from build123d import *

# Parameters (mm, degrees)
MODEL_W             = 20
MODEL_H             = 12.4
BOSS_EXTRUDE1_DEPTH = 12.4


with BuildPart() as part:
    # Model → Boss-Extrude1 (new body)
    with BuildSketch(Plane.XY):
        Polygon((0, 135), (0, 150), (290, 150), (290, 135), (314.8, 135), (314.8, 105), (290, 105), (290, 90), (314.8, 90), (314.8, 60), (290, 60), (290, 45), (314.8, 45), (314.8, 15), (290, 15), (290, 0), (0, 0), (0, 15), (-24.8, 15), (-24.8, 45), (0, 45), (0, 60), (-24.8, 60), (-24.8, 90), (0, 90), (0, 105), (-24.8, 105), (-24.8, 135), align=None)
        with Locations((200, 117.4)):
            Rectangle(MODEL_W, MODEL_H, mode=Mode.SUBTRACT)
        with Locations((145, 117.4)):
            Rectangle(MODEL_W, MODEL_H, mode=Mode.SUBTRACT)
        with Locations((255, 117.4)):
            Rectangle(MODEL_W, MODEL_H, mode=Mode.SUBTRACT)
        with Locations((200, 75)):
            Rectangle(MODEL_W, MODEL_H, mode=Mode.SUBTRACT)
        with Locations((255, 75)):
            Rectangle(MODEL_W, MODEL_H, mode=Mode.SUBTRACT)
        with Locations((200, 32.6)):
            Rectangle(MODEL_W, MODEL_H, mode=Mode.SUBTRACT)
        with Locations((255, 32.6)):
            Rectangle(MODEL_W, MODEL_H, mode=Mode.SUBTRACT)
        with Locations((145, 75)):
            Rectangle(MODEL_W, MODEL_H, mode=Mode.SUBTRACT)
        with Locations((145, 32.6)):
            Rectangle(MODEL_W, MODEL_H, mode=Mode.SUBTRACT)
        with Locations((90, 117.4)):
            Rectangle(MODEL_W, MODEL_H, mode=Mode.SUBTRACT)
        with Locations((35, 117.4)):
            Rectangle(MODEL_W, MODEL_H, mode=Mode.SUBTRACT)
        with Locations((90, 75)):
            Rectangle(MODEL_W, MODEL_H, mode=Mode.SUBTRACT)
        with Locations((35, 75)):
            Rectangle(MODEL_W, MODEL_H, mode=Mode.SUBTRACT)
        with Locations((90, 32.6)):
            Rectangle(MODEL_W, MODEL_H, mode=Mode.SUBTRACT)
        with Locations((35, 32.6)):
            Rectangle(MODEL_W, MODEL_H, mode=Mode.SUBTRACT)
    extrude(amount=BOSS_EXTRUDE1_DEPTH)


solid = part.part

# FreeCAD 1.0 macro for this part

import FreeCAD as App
import Part
import Sketcher
Q = App.Units.Quantity


def add_polygon(sketch, points):
    """Adds a closed chain of lines whose ends are joined by coincident constraints."""
    first, n = sketch.GeometryCount, len(points)
    for a, b in zip(points, points[1:] + points[:1]):
        sketch.addGeometry(Part.LineSegment(App.Vector(*a, 0), App.Vector(*b, 0)), False)
    for i in range(n):
        sketch.addConstraint(Sketcher.Constraint("Coincident", first + i, 2, first + (i + 1) % n, 1))

doc = App.newDocument("Part")
body = doc.addObject("PartDesign::Body", "Body")

sketch1 = body.newObject("Sketcher::SketchObject", "Sketch")
sketch1.AttachmentSupport = (doc.getObject("XY_Plane"), [""])
sketch1.MapMode = "FlatFace"
add_polygon(sketch1, [(0, 150), (0, 135), (-25, 135), (-25, 105), (0, 105), (0, 90), (-25, 90), (-25, 60), (0, 60), (0, 45), (-25, 45), (-25, 15), (0, 15), (0, 0), (290, 0), (290, 15), (315, 15), (315, 45), (290, 45), (290, 60), (315, 60), (315, 90), (290, 90), (290, 105), (315, 105), (315, 135), (290, 135), (290, 150)])
add_polygon(sketch1, [(245, 26), (245, 39), (265, 39), (265, 26)])
add_polygon(sketch1, [(190, 26), (190, 39), (210, 39), (210, 26)])
add_polygon(sketch1, [(245, 69), (245, 81), (265, 81), (265, 69)])
add_polygon(sketch1, [(190, 69), (190, 81), (210, 81), (210, 69)])
add_polygon(sketch1, [(135, 26), (135, 39), (155, 39), (155, 26)])
add_polygon(sketch1, [(80, 26), (80, 39), (100, 39), (100, 26)])
add_polygon(sketch1, [(25, 26), (25, 39), (45, 39), (45, 26)])
add_polygon(sketch1, [(135, 69), (135, 81), (155, 81), (155, 69)])
add_polygon(sketch1, [(80, 69), (80, 81), (100, 81), (100, 69)])
add_polygon(sketch1, [(25, 69), (25, 81), (45, 81), (45, 69)])
add_polygon(sketch1, [(245, 111), (245, 124), (265, 124), (265, 111)])
add_polygon(sketch1, [(190, 111), (190, 124), (210, 124), (210, 111)])
add_polygon(sketch1, [(135, 111), (135, 124), (155, 124), (155, 111)])
add_polygon(sketch1, [(80, 111), (80, 124), (100, 124), (100, 111)])
add_polygon(sketch1, [(25, 111), (25, 124), (45, 124), (45, 111)])
sketch1.addConstraint(Sketcher.Constraint("Vertical", 0))
sketch1.addConstraint(Sketcher.Constraint("Horizontal", 1))
sketch1.addConstraint(Sketcher.Constraint("Vertical", 2))
sketch1.addConstraint(Sketcher.Constraint("Horizontal", 3))
sketch1.addConstraint(Sketcher.Constraint("Vertical", 4))
sketch1.addConstraint(Sketcher.Constraint("Horizontal", 5))
sketch1.addConstraint(Sketcher.Constraint("Vertical", 6))
sketch1.addConstraint(Sketcher.Constraint("Horizontal", 7))
sketch1.addConstraint(Sketcher.Constraint("Vertical", 8))
sketch1.addConstraint(Sketcher.Constraint("Horizontal", 9))
sketch1.addConstraint(Sketcher.Constraint("Vertical", 10))
sketch1.addConstraint(Sketcher.Constraint("Horizontal", 11))
sketch1.addConstraint(Sketcher.Constraint("Vertical", 12))
sketch1.addConstraint(Sketcher.Constraint("Horizontal", 13))
sketch1.addConstraint(Sketcher.Constraint("Vertical", 14))
sketch1.addConstraint(Sketcher.Constraint("Horizontal", 15))
sketch1.addConstraint(Sketcher.Constraint("Vertical", 16))
sketch1.addConstraint(Sketcher.Constraint("Horizontal", 17))
sketch1.addConstraint(Sketcher.Constraint("Vertical", 18))
sketch1.addConstraint(Sketcher.Constraint("Horizontal", 19))
sketch1.addConstraint(Sketcher.Constraint("Vertical", 20))
sketch1.addConstraint(Sketcher.Constraint("Horizontal", 21))
sketch1.addConstraint(Sketcher.Constraint("Vertical", 22))
sketch1.addConstraint(Sketcher.Constraint("Horizontal", 23))
sketch1.addConstraint(Sketcher.Constraint("Vertical", 24))
sketch1.addConstraint(Sketcher.Constraint("Horizontal", 25))
sketch1.addConstraint(Sketcher.Constraint("Vertical", 26))
sketch1.addConstraint(Sketcher.Constraint("Horizontal", 27))
sketch1.addConstraint(Sketcher.Constraint("Vertical", 28))
sketch1.addConstraint(Sketcher.Constraint("Horizontal", 29))
sketch1.addConstraint(Sketcher.Constraint("Vertical", 30))
sketch1.addConstraint(Sketcher.Constraint("Horizontal", 31))
sketch1.addConstraint(Sketcher.Constraint("Vertical", 32))
sketch1.addConstraint(Sketcher.Constraint("Horizontal", 33))
sketch1.addConstraint(Sketcher.Constraint("Vertical", 34))
sketch1.addConstraint(Sketcher.Constraint("Horizontal", 35))
sketch1.addConstraint(Sketcher.Constraint("Vertical", 36))
sketch1.addConstraint(Sketcher.Constraint("Horizontal", 37))
sketch1.addConstraint(Sketcher.Constraint("Vertical", 38))
sketch1.addConstraint(Sketcher.Constraint("Horizontal", 39))
sketch1.addConstraint(Sketcher.Constraint("Vertical", 40))
sketch1.addConstraint(Sketcher.Constraint("Horizontal", 41))
sketch1.addConstraint(Sketcher.Constraint("Vertical", 42))
sketch1.addConstraint(Sketcher.Constraint("Horizontal", 43))
sketch1.addConstraint(Sketcher.Constraint("Vertical", 44))
sketch1.addConstraint(Sketcher.Constraint("Horizontal", 45))
sketch1.addConstraint(Sketcher.Constraint("Vertical", 46))
sketch1.addConstraint(Sketcher.Constraint("Horizontal", 47))
sketch1.addConstraint(Sketcher.Constraint("Vertical", 48))
sketch1.addConstraint(Sketcher.Constraint("Horizontal", 49))
sketch1.addConstraint(Sketcher.Constraint("Vertical", 50))
sketch1.addConstraint(Sketcher.Constraint("Horizontal", 51))
sketch1.addConstraint(Sketcher.Constraint("Vertical", 52))
sketch1.addConstraint(Sketcher.Constraint("Horizontal", 53))
sketch1.addConstraint(Sketcher.Constraint("Vertical", 54))
sketch1.addConstraint(Sketcher.Constraint("Horizontal", 55))
sketch1.addConstraint(Sketcher.Constraint("Vertical", 56))
sketch1.addConstraint(Sketcher.Constraint("Horizontal", 57))
sketch1.addConstraint(Sketcher.Constraint("Vertical", 58))
sketch1.addConstraint(Sketcher.Constraint("Horizontal", 59))
sketch1.addConstraint(Sketcher.Constraint("Vertical", 60))
sketch1.addConstraint(Sketcher.Constraint("Horizontal", 61))
sketch1.addConstraint(Sketcher.Constraint("Vertical", 62))
sketch1.addConstraint(Sketcher.Constraint("Horizontal", 63))
sketch1.addConstraint(Sketcher.Constraint("Vertical", 64))
sketch1.addConstraint(Sketcher.Constraint("Horizontal", 65))
sketch1.addConstraint(Sketcher.Constraint("Vertical", 66))
sketch1.addConstraint(Sketcher.Constraint("Horizontal", 67))
sketch1.addConstraint(Sketcher.Constraint("Vertical", 68))
sketch1.addConstraint(Sketcher.Constraint("Horizontal", 69))
sketch1.addConstraint(Sketcher.Constraint("Vertical", 70))
sketch1.addConstraint(Sketcher.Constraint("Horizontal", 71))
sketch1.addConstraint(Sketcher.Constraint("Vertical", 72))
sketch1.addConstraint(Sketcher.Constraint("Horizontal", 73))
sketch1.addConstraint(Sketcher.Constraint("Vertical", 74))
sketch1.addConstraint(Sketcher.Constraint("Horizontal", 75))
sketch1.addConstraint(Sketcher.Constraint("Vertical", 76))
sketch1.addConstraint(Sketcher.Constraint("Horizontal", 77))
sketch1.addConstraint(Sketcher.Constraint("Vertical", 78))
sketch1.addConstraint(Sketcher.Constraint("Horizontal", 79))
sketch1.addConstraint(Sketcher.Constraint("Vertical", 80))
sketch1.addConstraint(Sketcher.Constraint("Horizontal", 81))
sketch1.addConstraint(Sketcher.Constraint("Vertical", 82))
sketch1.addConstraint(Sketcher.Constraint("Horizontal", 83))
sketch1.addConstraint(Sketcher.Constraint("Vertical", 84))
sketch1.addConstraint(Sketcher.Constraint("Horizontal", 85))
sketch1.addConstraint(Sketcher.Constraint("Vertical", 86))
sketch1.addConstraint(Sketcher.Constraint("Horizontal", 87))
sketch1.addConstraint(Sketcher.Constraint("Coincident", 12, 2, -1, 1))
sketch1.addConstraint(Sketcher.Constraint("PointOnObject", 0, 2, -2))
sketch1.addConstraint(Sketcher.Constraint("PointOnObject", 3, 2, -2))
sketch1.addConstraint(Sketcher.Constraint("PointOnObject", 7, 2, -2))
sketch1.addConstraint(Sketcher.Constraint("Horizontal", 11, 2, 14, 2))
sketch1.addConstraint(Sketcher.Constraint("Horizontal", 9, 2, 16, 2))
sketch1.addConstraint(Sketcher.Constraint("Horizontal", 7, 2, 18, 2))
sketch1.addConstraint(Sketcher.Constraint("Horizontal", 5, 2, 20, 2))
sketch1.addConstraint(Sketcher.Constraint("Horizontal", 3, 2, 22, 2))
sketch1.addConstraint(Sketcher.Constraint("Horizontal", 1, 2, 24, 2))
sketch1.addConstraint(Sketcher.Constraint("Horizontal", 29, 2, 32, 2))
sketch1.addConstraint(Sketcher.Constraint("Horizontal", 31, 2, 34, 2))
sketch1.addConstraint(Sketcher.Constraint("Horizontal", 37, 2, 40, 2))
sketch1.addConstraint(Sketcher.Constraint("Horizontal", 39, 2, 42, 2))
sketch1.addConstraint(Sketcher.Constraint("Horizontal", 33, 2, 44, 2))
sketch1.addConstraint(Sketcher.Constraint("Horizontal", 35, 2, 46, 2))
sketch1.addConstraint(Sketcher.Constraint("Horizontal", 45, 2, 48, 2))
sketch1.addConstraint(Sketcher.Constraint("Horizontal", 47, 2, 50, 2))
sketch1.addConstraint(Sketcher.Constraint("Horizontal", 49, 2, 52, 2))
sketch1.addConstraint(Sketcher.Constraint("Horizontal", 51, 2, 54, 2))
sketch1.addConstraint(Sketcher.Constraint("Horizontal", 41, 2, 56, 2))
sketch1.addConstraint(Sketcher.Constraint("Horizontal", 43, 2, 58, 2))
sketch1.addConstraint(Sketcher.Constraint("Horizontal", 57, 2, 60, 2))
sketch1.addConstraint(Sketcher.Constraint("Horizontal", 59, 2, 62, 2))
sketch1.addConstraint(Sketcher.Constraint("Horizontal", 61, 2, 64, 2))
sketch1.addConstraint(Sketcher.Constraint("Horizontal", 63, 2, 66, 2))
sketch1.addConstraint(Sketcher.Constraint("Horizontal", 69, 2, 72, 2))
sketch1.addConstraint(Sketcher.Constraint("Horizontal", 71, 2, 74, 2))
sketch1.addConstraint(Sketcher.Constraint("Horizontal", 73, 2, 76, 2))
sketch1.addConstraint(Sketcher.Constraint("Horizontal", 75, 2, 78, 2))
sketch1.addConstraint(Sketcher.Constraint("Horizontal", 77, 2, 80, 2))
sketch1.addConstraint(Sketcher.Constraint("Horizontal", 79, 2, 82, 2))
sketch1.addConstraint(Sketcher.Constraint("Horizontal", 81, 2, 84, 2))
sketch1.addConstraint(Sketcher.Constraint("Horizontal", 83, 2, 86, 2))
sketch1.addConstraint(Sketcher.Constraint("Vertical", 2, 2, 5, 2))
sketch1.addConstraint(Sketcher.Constraint("Vertical", 6, 2, 9, 2))
sketch1.addConstraint(Sketcher.Constraint("Vertical", 14, 2, 17, 2))
sketch1.addConstraint(Sketcher.Constraint("Vertical", 16, 2, 19, 2))
sketch1.addConstraint(Sketcher.Constraint("Vertical", 18, 2, 21, 2))
sketch1.addConstraint(Sketcher.Constraint("Vertical", 20, 2, 23, 2))
sketch1.addConstraint(Sketcher.Constraint("Vertical", 22, 2, 25, 2))
sketch1.addConstraint(Sketcher.Constraint("Vertical", 31, 2, 36, 2))
sketch1.addConstraint(Sketcher.Constraint("Vertical", 30, 2, 37, 2))
sketch1.addConstraint(Sketcher.Constraint("Vertical", 35, 2, 40, 2))
sketch1.addConstraint(Sketcher.Constraint("Vertical", 34, 2, 41, 2))
sketch1.addConstraint(Sketcher.Constraint("Vertical", 47, 2, 56, 2))
sketch1.addConstraint(Sketcher.Constraint("Vertical", 46, 2, 57, 2))
sketch1.addConstraint(Sketcher.Constraint("Vertical", 51, 2, 60, 2))
sketch1.addConstraint(Sketcher.Constraint("Vertical", 50, 2, 61, 2))
sketch1.addConstraint(Sketcher.Constraint("Vertical", 55, 2, 64, 2))
sketch1.addConstraint(Sketcher.Constraint("Vertical", 54, 2, 65, 2))
sketch1.addConstraint(Sketcher.Constraint("Vertical", 39, 2, 68, 2))
sketch1.addConstraint(Sketcher.Constraint("Vertical", 38, 2, 69, 2))
sketch1.addConstraint(Sketcher.Constraint("Vertical", 43, 2, 72, 2))
sketch1.addConstraint(Sketcher.Constraint("Vertical", 42, 2, 73, 2))
sketch1.addConstraint(Sketcher.Constraint("Vertical", 59, 2, 76, 2))
sketch1.addConstraint(Sketcher.Constraint("Vertical", 58, 2, 77, 2))
sketch1.addConstraint(Sketcher.Constraint("Vertical", 63, 2, 80, 2))
sketch1.addConstraint(Sketcher.Constraint("Vertical", 62, 2, 81, 2))
sketch1.addConstraint(Sketcher.Constraint("Vertical", 67, 2, 84, 2))
sketch1.addConstraint(Sketcher.Constraint("Vertical", 66, 2, 85, 2))
sketch1.addConstraint(Sketcher.Constraint("Equal", 11, 15))
sketch1.addConstraint(Sketcher.Constraint("Equal", 31, 33))
sketch1.addConstraint(Sketcher.Constraint("Equal", 43, 45))
sketch1.addConstraint(Sketcher.Constraint("Equal", 47, 49))
sketch1.addConstraint(Sketcher.Constraint("Equal", 51, 53))
sketch1.addConstraint(Sketcher.Constraint("Equal", 0, 4))
sketch1.addConstraint(Sketcher.Constraint("Equal", 2, 6))
sketch1.addConstraint(Sketcher.Constraint("Equal", 4, 8))
sketch1.addConstraint(Sketcher.Constraint("Equal", 6, 10))
sketch1.addConstraint(Sketcher.Constraint("Equal", 8, 12))
sketch1.addConstraint(Sketcher.Constraint("Equal", 34, 36))
sketch1.addConstraint(Sketcher.Constraint("Equal", 66, 68))
sketch1.addConstraint(Sketcher.Constraint("DistanceX", 13, 1, 13, 2, Q("290 mm")))
sketch1.addConstraint(Sketcher.Constraint("DistanceX", 29, 1, 29, 2, Q("20 mm")))
sketch1.addConstraint(Sketcher.Constraint("DistanceY", 0, 2, 0, 1, Q("15 mm")))
sketch1.addConstraint(Sketcher.Constraint("DistanceY", 2, 2, 2, 1, Q("30 mm")))
sketch1.addConstraint(Sketcher.Constraint("DistanceX", 1, 2, 1, 1, Q("24.8 mm")))
sketch1.addConstraint(Sketcher.Constraint("DistanceY", 28, 1, 28, 2, Q("12.4 mm")))
sketch1.addConstraint(Sketcher.Constraint("DistanceX", -1, 1, 28, 2, Q("245 mm")))
sketch1.addConstraint(Sketcher.Constraint("DistanceX", -1, 1, 32, 2, Q("190 mm")))
sketch1.addConstraint(Sketcher.Constraint("DistanceX", -1, 1, 44, 2, Q("135 mm")))
sketch1.addConstraint(Sketcher.Constraint("DistanceX", -1, 1, 48, 2, Q("80 mm")))
sketch1.addConstraint(Sketcher.Constraint("DistanceX", -1, 1, 52, 2, Q("25 mm")))
sketch1.addConstraint(Sketcher.Constraint("DistanceY", -1, 1, 28, 2, Q("38.8 mm")))
sketch1.addConstraint(Sketcher.Constraint("DistanceY", -1, 1, 36, 2, Q("81.2 mm")))
sketch1.addConstraint(Sketcher.Constraint("DistanceY", -1, 1, 68, 2, Q("123.6 mm")))
pad1 = body.newObject("PartDesign::Pad", "Pad")
pad1.Profile = sketch1
pad1.Length = 12.4

doc.recompute()
